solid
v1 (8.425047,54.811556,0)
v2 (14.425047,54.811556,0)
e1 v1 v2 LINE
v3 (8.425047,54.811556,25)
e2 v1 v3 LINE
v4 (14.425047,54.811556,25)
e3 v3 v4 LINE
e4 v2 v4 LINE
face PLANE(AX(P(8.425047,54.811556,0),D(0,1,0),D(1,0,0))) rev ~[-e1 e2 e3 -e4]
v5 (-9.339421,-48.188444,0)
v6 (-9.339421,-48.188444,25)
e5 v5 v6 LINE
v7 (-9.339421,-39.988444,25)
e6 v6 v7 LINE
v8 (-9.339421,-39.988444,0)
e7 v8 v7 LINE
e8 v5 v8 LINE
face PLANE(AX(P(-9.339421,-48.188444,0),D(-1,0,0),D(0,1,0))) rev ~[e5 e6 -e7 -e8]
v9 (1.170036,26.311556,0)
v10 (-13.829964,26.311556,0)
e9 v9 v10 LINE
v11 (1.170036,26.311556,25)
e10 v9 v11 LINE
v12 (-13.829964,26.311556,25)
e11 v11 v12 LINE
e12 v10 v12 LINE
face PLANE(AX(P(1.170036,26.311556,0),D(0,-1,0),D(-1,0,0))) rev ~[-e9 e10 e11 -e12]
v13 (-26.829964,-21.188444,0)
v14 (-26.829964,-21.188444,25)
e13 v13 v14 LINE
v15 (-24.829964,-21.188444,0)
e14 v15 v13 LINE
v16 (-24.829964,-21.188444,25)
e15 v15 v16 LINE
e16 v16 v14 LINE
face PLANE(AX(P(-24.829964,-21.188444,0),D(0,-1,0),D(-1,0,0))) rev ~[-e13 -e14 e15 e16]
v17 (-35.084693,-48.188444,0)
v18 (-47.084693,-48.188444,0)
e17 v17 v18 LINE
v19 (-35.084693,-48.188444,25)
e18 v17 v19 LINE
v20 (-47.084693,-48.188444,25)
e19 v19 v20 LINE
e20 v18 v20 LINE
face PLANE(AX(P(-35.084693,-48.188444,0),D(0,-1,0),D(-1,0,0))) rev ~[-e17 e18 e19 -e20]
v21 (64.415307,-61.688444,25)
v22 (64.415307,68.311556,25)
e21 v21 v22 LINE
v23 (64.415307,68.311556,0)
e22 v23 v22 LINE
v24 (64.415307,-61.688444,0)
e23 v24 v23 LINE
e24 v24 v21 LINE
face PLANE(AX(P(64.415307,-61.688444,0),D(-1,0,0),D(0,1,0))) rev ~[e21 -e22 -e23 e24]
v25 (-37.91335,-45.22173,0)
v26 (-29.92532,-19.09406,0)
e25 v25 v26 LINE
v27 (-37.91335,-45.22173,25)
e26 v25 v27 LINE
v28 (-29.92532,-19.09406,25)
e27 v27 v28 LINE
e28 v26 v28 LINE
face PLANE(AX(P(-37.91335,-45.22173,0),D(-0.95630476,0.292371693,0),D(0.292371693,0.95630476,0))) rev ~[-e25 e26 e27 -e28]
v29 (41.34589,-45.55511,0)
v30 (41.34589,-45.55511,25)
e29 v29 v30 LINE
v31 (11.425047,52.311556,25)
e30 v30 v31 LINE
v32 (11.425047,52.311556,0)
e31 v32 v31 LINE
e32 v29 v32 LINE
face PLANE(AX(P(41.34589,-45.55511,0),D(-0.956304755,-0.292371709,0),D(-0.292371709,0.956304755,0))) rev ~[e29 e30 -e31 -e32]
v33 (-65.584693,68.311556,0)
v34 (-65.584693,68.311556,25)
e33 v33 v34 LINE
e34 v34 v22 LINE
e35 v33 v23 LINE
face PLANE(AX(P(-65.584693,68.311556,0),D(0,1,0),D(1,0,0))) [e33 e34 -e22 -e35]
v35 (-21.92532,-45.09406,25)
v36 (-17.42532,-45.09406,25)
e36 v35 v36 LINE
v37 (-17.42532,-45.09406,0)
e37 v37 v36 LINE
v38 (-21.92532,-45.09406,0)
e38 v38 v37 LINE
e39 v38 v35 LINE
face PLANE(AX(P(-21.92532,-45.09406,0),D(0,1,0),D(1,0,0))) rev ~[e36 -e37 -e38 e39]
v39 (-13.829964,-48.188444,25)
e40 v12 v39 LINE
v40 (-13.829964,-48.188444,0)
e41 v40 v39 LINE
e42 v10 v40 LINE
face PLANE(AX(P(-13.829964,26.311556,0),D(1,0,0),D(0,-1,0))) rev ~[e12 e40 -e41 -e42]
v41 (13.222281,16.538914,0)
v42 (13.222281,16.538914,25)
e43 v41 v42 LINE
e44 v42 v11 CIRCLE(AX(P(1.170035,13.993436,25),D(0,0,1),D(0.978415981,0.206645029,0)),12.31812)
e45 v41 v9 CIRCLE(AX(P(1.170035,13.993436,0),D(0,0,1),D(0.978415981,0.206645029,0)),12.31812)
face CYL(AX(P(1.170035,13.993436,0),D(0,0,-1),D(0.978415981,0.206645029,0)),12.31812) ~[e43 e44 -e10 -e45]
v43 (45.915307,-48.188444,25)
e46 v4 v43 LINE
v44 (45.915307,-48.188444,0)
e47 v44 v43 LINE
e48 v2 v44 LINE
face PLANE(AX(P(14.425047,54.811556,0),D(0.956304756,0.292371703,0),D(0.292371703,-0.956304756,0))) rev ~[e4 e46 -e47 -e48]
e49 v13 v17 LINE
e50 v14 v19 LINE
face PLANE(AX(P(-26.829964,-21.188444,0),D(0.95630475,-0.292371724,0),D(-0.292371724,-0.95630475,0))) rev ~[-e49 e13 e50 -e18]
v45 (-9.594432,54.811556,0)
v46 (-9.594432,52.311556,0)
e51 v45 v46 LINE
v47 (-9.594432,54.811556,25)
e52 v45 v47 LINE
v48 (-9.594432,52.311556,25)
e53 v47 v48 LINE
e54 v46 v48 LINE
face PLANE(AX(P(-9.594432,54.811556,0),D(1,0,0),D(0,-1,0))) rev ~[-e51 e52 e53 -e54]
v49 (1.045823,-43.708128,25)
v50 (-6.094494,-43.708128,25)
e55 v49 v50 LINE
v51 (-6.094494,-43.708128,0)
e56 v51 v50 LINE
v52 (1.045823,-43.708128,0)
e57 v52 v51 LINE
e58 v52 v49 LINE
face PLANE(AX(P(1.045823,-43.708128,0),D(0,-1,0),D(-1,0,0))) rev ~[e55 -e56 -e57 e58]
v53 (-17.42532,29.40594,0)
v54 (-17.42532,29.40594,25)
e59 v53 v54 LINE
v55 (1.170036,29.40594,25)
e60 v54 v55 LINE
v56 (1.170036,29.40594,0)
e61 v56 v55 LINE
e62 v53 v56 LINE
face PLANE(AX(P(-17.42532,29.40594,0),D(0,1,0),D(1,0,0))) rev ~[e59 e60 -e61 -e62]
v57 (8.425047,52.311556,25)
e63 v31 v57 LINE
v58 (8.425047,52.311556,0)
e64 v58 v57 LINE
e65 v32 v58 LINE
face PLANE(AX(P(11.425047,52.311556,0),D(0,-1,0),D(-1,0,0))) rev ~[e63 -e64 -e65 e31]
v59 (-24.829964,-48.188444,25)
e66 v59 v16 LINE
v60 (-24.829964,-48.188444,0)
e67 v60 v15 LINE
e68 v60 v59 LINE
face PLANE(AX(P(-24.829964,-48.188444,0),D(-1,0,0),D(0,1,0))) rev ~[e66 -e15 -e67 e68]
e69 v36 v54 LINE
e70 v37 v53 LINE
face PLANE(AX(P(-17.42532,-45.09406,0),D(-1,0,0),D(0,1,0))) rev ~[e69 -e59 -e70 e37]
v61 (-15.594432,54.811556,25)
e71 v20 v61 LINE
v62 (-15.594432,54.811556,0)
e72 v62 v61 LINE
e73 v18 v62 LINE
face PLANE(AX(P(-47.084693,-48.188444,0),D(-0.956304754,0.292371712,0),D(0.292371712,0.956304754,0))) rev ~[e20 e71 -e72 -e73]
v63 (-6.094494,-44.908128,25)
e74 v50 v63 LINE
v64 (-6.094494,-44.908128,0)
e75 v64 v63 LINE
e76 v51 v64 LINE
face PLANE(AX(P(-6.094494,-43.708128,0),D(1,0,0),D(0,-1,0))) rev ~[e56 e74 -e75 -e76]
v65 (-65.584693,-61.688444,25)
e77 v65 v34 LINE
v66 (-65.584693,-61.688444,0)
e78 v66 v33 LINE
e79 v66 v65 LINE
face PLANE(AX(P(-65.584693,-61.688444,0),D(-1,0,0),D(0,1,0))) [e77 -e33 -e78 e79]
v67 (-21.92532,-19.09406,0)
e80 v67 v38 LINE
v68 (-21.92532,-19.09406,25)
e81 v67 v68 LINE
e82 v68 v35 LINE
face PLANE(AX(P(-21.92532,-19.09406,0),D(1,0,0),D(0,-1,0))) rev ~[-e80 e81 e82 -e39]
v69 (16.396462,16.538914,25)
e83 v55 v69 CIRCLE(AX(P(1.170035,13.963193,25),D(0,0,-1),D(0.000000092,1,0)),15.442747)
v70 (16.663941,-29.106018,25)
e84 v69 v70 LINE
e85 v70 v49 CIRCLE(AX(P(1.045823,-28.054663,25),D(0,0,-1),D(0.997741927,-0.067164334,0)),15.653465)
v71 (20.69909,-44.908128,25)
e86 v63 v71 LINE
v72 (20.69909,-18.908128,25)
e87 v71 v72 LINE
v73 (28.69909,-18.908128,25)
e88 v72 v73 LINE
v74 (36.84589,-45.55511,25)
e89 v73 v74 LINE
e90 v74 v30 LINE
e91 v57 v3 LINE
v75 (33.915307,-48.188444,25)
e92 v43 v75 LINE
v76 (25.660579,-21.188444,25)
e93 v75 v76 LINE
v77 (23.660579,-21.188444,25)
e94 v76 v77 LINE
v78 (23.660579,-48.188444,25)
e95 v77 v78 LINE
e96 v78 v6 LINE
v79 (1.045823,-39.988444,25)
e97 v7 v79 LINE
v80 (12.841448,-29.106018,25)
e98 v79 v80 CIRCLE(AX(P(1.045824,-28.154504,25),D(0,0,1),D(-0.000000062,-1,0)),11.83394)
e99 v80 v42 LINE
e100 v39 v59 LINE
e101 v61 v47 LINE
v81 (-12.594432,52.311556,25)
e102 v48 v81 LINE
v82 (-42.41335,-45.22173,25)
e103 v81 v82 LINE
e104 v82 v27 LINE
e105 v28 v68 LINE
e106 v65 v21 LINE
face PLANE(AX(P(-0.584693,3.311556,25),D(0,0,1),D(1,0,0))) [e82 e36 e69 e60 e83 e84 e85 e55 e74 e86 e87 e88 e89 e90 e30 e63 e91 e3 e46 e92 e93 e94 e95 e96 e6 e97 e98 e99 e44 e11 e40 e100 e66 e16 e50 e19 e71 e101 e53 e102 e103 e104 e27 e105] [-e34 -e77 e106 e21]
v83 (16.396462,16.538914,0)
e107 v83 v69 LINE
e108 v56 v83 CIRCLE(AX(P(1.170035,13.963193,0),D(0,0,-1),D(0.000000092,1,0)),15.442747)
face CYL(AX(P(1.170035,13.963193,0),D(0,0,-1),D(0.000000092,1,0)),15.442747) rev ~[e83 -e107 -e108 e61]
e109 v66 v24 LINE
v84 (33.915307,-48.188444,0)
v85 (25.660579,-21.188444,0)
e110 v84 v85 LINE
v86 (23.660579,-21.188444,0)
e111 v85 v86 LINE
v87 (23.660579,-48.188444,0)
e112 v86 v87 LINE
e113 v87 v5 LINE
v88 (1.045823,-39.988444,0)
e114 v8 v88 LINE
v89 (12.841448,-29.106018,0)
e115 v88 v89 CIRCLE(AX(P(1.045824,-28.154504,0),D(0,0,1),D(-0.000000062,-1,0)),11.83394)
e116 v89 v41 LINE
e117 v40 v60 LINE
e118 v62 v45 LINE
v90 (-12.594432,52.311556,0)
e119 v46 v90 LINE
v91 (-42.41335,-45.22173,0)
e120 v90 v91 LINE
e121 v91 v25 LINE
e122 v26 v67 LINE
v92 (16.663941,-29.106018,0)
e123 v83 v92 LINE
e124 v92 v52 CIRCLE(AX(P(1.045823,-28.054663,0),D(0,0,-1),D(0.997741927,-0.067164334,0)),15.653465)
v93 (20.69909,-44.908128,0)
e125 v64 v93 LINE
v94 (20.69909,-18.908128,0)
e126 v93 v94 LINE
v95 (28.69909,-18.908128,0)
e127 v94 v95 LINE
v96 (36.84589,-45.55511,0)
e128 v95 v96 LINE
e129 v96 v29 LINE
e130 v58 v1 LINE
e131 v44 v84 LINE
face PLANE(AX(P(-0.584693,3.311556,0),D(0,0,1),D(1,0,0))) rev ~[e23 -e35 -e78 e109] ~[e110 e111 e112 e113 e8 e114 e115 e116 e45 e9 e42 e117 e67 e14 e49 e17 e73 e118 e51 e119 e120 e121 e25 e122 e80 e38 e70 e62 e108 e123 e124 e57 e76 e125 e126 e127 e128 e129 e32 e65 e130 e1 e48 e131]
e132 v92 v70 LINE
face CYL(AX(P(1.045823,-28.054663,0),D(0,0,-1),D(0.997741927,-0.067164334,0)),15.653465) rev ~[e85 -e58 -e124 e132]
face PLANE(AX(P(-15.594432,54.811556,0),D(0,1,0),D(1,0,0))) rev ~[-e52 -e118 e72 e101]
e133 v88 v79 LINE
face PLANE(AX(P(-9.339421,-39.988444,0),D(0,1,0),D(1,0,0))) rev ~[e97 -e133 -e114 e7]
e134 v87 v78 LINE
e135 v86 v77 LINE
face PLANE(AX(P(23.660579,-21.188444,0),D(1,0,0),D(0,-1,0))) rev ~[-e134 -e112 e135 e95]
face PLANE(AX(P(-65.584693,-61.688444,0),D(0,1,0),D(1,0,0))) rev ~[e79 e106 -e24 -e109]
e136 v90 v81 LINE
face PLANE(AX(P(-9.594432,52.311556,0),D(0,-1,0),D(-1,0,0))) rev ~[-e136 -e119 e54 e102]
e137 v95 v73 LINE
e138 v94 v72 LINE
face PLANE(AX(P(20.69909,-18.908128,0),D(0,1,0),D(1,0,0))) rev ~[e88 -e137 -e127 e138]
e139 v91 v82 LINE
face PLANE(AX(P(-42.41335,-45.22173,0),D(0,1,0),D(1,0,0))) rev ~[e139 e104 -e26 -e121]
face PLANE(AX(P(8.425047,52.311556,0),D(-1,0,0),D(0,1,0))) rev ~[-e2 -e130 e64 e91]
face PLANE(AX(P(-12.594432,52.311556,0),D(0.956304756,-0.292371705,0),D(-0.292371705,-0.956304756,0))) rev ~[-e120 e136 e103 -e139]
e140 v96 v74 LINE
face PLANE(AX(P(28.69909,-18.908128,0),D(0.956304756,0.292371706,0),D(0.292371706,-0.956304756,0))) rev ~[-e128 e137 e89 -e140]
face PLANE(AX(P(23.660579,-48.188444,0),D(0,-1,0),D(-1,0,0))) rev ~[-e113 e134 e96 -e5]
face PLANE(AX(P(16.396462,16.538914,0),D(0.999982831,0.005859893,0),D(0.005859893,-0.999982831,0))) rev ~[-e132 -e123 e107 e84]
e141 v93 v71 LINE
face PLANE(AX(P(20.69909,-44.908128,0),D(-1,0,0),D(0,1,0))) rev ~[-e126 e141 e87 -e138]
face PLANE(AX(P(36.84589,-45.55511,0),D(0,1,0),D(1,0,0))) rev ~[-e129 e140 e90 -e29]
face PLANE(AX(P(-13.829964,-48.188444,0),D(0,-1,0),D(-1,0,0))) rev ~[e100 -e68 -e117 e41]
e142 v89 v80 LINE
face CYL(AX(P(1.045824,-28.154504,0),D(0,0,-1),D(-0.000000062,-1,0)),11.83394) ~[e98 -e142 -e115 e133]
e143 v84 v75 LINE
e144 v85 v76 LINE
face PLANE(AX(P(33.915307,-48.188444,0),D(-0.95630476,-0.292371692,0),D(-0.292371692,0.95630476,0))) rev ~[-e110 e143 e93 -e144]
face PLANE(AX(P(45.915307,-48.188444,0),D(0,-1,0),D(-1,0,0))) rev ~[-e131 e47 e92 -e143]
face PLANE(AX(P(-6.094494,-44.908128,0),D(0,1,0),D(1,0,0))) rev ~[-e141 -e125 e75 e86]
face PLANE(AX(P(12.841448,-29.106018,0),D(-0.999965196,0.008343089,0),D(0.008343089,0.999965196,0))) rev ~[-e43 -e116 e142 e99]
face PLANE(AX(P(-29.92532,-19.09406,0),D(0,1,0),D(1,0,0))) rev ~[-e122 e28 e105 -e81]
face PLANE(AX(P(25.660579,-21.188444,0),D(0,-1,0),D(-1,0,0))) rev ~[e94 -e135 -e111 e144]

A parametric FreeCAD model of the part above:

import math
import FreeCAD as App
import Part
import Sketcher

V = App.Vector
Q = App.Units.Quantity

doc = App.newDocument("Part")
body = doc.addObject("PartDesign::Body", "Body")

# Sketch on XY plane
sketch1 = body.newObject("Sketcher::SketchObject", "Sketch")
sketch1.AttachmentSupport = (doc.getObject("XY_Plane"), [""])
sketch1.MapMode = "FlatFace"
sketch1.addGeometry([
    Part.LineSegment(V(-65.6, 68.3, 0), V(-65.6, -61.7, 0)),  # 0
    Part.LineSegment(V(-65.6, -61.7, 0), V(64.4, -61.7, 0)),  # 1
    Part.LineSegment(V(64.4, -61.7, 0), V(64.4, 68.3, 0)),  # 2
    Part.LineSegment(V(64.4, 68.3, 0), V(-65.6, 68.3, 0)),  # 3
    Part.LineSegment(V(-47.1, -48.2, 0), V(-15.6, 54.8, 0)),  # 4
    Part.LineSegment(V(-15.6, 54.8, 0), V(-9.6, 54.8, 0)),  # 5
    Part.LineSegment(V(-9.6, 54.8, 0), V(-9.6, 52.3, 0)),  # 6
    Part.LineSegment(V(-9.6, 52.3, 0), V(-12.6, 52.3, 0)),  # 7
    Part.LineSegment(V(-12.6, 52.3, 0), V(-42.4, -45.2, 0)),  # 8
    Part.LineSegment(V(-42.4, -45.2, 0), V(-37.9, -45.2, 0)),  # 9
    Part.LineSegment(V(-37.9, -45.2, 0), V(-29.9, -19.1, 0)),  # 10
    Part.LineSegment(V(-29.9, -19.1, 0), V(-21.9, -19.1, 0)),  # 11
    Part.LineSegment(V(-21.9, -19.1, 0), V(-21.9, -45.1, 0)),  # 12
    Part.LineSegment(V(-21.9, -45.1, 0), V(-17.4, -45.1, 0)),  # 13
    Part.LineSegment(V(-17.4, -45.1, 0), V(-17.4, 29.4, 0)),  # 14
    Part.LineSegment(V(-17.4, 29.4, 0), V(1.2, 29.4, 0)),  # 15
    Part.ArcOfCircle(Part.Circle(V(1.2, 14, 0), V(0, 0, 1), 15.4), math.radians(10), math.radians(90)),  # 16
    Part.LineSegment(V(16.4, 16.5, 0), V(16.7, -29.1, 0)),  # 17
    Part.ArcOfCircle(Part.Circle(V(1, -28.1, 0), V(0, 0, 1), 15.7), math.radians(-90), math.radians(-4)),  # 18
    Part.LineSegment(V(1, -43.7, 0), V(-6.1, -43.7, 0)),  # 19
    Part.LineSegment(V(-6.1, -43.7, 0), V(-6.1, -44.9, 0)),  # 20
    Part.LineSegment(V(-6.1, -44.9, 0), V(20.7, -44.9, 0)),  # 21
    Part.LineSegment(V(20.7, -44.9, 0), V(20.7, -18.9, 0)),  # 22
    Part.LineSegment(V(20.7, -18.9, 0), V(28.7, -18.9, 0)),  # 23
    Part.LineSegment(V(28.7, -18.9, 0), V(36.8, -45.6, 0)),  # 24
    Part.LineSegment(V(36.8, -45.6, 0), V(41.3, -45.6, 0)),  # 25
    Part.LineSegment(V(41.3, -45.6, 0), V(11.4, 52.3, 0)),  # 26
    Part.LineSegment(V(11.4, 52.3, 0), V(8.4, 52.3, 0)),  # 27
    Part.LineSegment(V(8.4, 52.3, 0), V(8.4, 54.8, 0)),  # 28
    Part.LineSegment(V(8.4, 54.8, 0), V(14.4, 54.8, 0)),  # 29
    Part.LineSegment(V(14.4, 54.8, 0), V(45.9, -48.2, 0)),  # 30
    Part.LineSegment(V(45.9, -48.2, 0), V(33.9, -48.2, 0)),  # 31
    Part.LineSegment(V(33.9, -48.2, 0), V(25.7, -21.2, 0)),  # 32
    Part.LineSegment(V(25.7, -21.2, 0), V(23.7, -21.2, 0)),  # 33
    Part.LineSegment(V(23.7, -21.2, 0), V(23.7, -48.2, 0)),  # 34
    Part.LineSegment(V(23.7, -48.2, 0), V(-9.3, -48.2, 0)),  # 35
    Part.LineSegment(V(-9.3, -48.2, 0), V(-9.3, -40, 0)),  # 36
    Part.LineSegment(V(-9.3, -40, 0), V(1, -40, 0)),  # 37
    Part.ArcOfCircle(Part.Circle(V(1, -28.2, 0), V(0, 0, 1), 11.8), math.radians(-90), math.radians(-5)),  # 38
    Part.LineSegment(V(12.8, -29.1, 0), V(13.2, 16.5, 0)),  # 39
    Part.ArcOfCircle(Part.Circle(V(1.2, 14, 0), V(0, 0, 1), 12.3), math.radians(12), math.radians(90)),  # 40
    Part.LineSegment(V(1.2, 26.3, 0), V(-13.8, 26.3, 0)),  # 41
    Part.LineSegment(V(-13.8, 26.3, 0), V(-13.8, -48.2, 0)),  # 42
    Part.LineSegment(V(-13.8, -48.2, 0), V(-24.8, -48.2, 0)),  # 43
    Part.LineSegment(V(-24.8, -48.2, 0), V(-24.8, -21.2, 0)),  # 44
    Part.LineSegment(V(-24.8, -21.2, 0), V(-26.8, -21.2, 0)),  # 45
    Part.LineSegment(V(-26.8, -21.2, 0), V(-35.1, -48.2, 0)),  # 46
    Part.LineSegment(V(-35.1, -48.2, 0), V(-47.1, -48.2, 0)),  # 47
], False)
sketch1.addConstraint([
    Sketcher.Constraint("Coincident", 0, 2, 1, 1),
    Sketcher.Constraint("Coincident", 1, 2, 2, 1),
    Sketcher.Constraint("Coincident", 2, 2, 3, 1),
    Sketcher.Constraint("Coincident", 3, 2, 0, 1),
    Sketcher.Constraint("Coincident", 4, 2, 5, 1),
    Sketcher.Constraint("Coincident", 5, 2, 6, 1),
    Sketcher.Constraint("Coincident", 6, 2, 7, 1),
    Sketcher.Constraint("Coincident", 7, 2, 8, 1),
    Sketcher.Constraint("Coincident", 8, 2, 9, 1),
    Sketcher.Constraint("Coincident", 9, 2, 10, 1),
    Sketcher.Constraint("Coincident", 10, 2, 11, 1),
    Sketcher.Constraint("Coincident", 11, 2, 12, 1),
    Sketcher.Constraint("Coincident", 12, 2, 13, 1),
    Sketcher.Constraint("Coincident", 13, 2, 14, 1),
    Sketcher.Constraint("Coincident", 14, 2, 15, 1),
    Sketcher.Constraint("Tangent", 15, 2, 16, 2),
    Sketcher.Constraint("Coincident", 16, 1, 17, 1),
    Sketcher.Constraint("Coincident", 17, 2, 18, 2),
    Sketcher.Constraint("Tangent", 18, 1, 19, 1),
    Sketcher.Constraint("Coincident", 19, 2, 20, 1),
    Sketcher.Constraint("Coincident", 20, 2, 21, 1),
    Sketcher.Constraint("Coincident", 21, 2, 22, 1),
    Sketcher.Constraint("Coincident", 22, 2, 23, 1),
    Sketcher.Constraint("Coincident", 23, 2, 24, 1),
    Sketcher.Constraint("Coincident", 24, 2, 25, 1),
    Sketcher.Constraint("Coincident", 25, 2, 26, 1),
    Sketcher.Constraint("Coincident", 26, 2, 27, 1),
    Sketcher.Constraint("Coincident", 27, 2, 28, 1),
    Sketcher.Constraint("Coincident", 28, 2, 29, 1),
    Sketcher.Constraint("Coincident", 29, 2, 30, 1),
    Sketcher.Constraint("Coincident", 30, 2, 31, 1),
    Sketcher.Constraint("Coincident", 31, 2, 32, 1),
    Sketcher.Constraint("Coincident", 32, 2, 33, 1),
    Sketcher.Constraint("Coincident", 33, 2, 34, 1),
    Sketcher.Constraint("Coincident", 34, 2, 35, 1),
    Sketcher.Constraint("Coincident", 35, 2, 36, 1),
    Sketcher.Constraint("Coincident", 36, 2, 37, 1),
    Sketcher.Constraint("Tangent", 37, 2, 38, 1),
    Sketcher.Constraint("Coincident", 38, 2, 39, 1),
    Sketcher.Constraint("Coincident", 39, 2, 40, 1),
    Sketcher.Constraint("Tangent", 40, 2, 41, 1),
    Sketcher.Constraint("Coincident", 41, 2, 42, 1),
    Sketcher.Constraint("Coincident", 42, 2, 43, 1),
    Sketcher.Constraint("Coincident", 43, 2, 44, 1),
    Sketcher.Constraint("Coincident", 44, 2, 45, 1),
    Sketcher.Constraint("Coincident", 45, 2, 46, 1),
    Sketcher.Constraint("Coincident", 46, 2, 47, 1),
    Sketcher.Constraint("Coincident", 47, 2, 4, 1),
    Sketcher.Constraint("Vertical", 0),
    Sketcher.Constraint("Horizontal", 1),
    Sketcher.Constraint("Vertical", 2),
    Sketcher.Constraint("Horizontal", 3),
    Sketcher.Constraint("Horizontal", 5),
    Sketcher.Constraint("Vertical", 6),
    Sketcher.Constraint("Horizontal", 7),
    Sketcher.Constraint("Horizontal", 9),
    Sketcher.Constraint("Horizontal", 11),
    Sketcher.Constraint("Vertical", 12),
    Sketcher.Constraint("Horizontal", 13),
    Sketcher.Constraint("Vertical", 14),
    Sketcher.Constraint("Horizontal", 15),
    Sketcher.Constraint("Horizontal", 19),
    Sketcher.Constraint("Vertical", 20),
    Sketcher.Constraint("Horizontal", 21),
    Sketcher.Constraint("Vertical", 22),
    Sketcher.Constraint("Horizontal", 23),
    Sketcher.Constraint("Horizontal", 25),
    Sketcher.Constraint("Horizontal", 27),
    Sketcher.Constraint("Vertical", 28),
    Sketcher.Constraint("Horizontal", 29),
    Sketcher.Constraint("Horizontal", 31),
    Sketcher.Constraint("Horizontal", 33),
    Sketcher.Constraint("Vertical", 34),
    Sketcher.Constraint("Horizontal", 35),
    Sketcher.Constraint("Vertical", 36),
    Sketcher.Constraint("Horizontal", 37),
    Sketcher.Constraint("Horizontal", 41),
    Sketcher.Constraint("Vertical", 42),
    Sketcher.Constraint("Horizontal", 43),
    Sketcher.Constraint("Vertical", 44),
    Sketcher.Constraint("Horizontal", 45),
    Sketcher.Constraint("Horizontal", 47),
    Sketcher.Constraint("Parallel", 4, 8),
    Sketcher.Constraint("Parallel", 8, 10),
    Sketcher.Constraint("Parallel", 24, 26),
    Sketcher.Constraint("Parallel", 26, 30),
    Sketcher.Constraint("Parallel", 30, 32),
    Sketcher.Constraint("Parallel", 10, 46),
    Sketcher.Constraint("Horizontal", 7, 2, 26, 2),
    Sketcher.Constraint("Horizontal", 5, 2, 28, 2),
    Sketcher.Constraint("Horizontal", 31, 2, 34, 2),
    Sketcher.Constraint("Horizontal", 17, 2, 38, 2),
    Sketcher.Constraint("Horizontal", 16, 1, 39, 2),
    Sketcher.Constraint("Horizontal", 35, 2, 42, 2),
    Sketcher.Constraint("Horizontal", 33, 2, 44, 2),
    Sketcher.Constraint("Horizontal", 43, 2, 46, 2),
    Sketcher.Constraint("Vertical", 18, 3, 38, 3),
    Sketcher.Constraint("Vertical", 16, 3, 40, 3),
    Sketcher.Constraint("Equal", 9, 13),
    Sketcher.Constraint("Equal", 11, 23),
    Sketcher.Constraint("Equal", 13, 25),
    Sketcher.Constraint("Equal", 7, 27),
    Sketcher.Constraint("Equal", 5, 29),
    Sketcher.Constraint("Equal", 33, 45),
    Sketcher.Constraint("Equal", 31, 47),
    Sketcher.Constraint("Equal", 3, 0),
    Sketcher.Constraint("Equal", 12, 22),
    Sketcher.Constraint("Equal", 14, 42),
    Sketcher.Constraint("Equal", 4, 30),
    Sketcher.Constraint("DistanceX", 1, 1, 1, 2, 130.0),
    Sketcher.Constraint("DistanceX", 5, 1, 5, 2, 6.0),
    Sketcher.Constraint("DistanceX", 7, 2, 7, 1, 3.0),
    Sketcher.Constraint("DistanceX", 11, 1, 11, 2, 8.0),
    Sketcher.Constraint("DistanceX", 31, 2, 31, 1, 12.0),
    Sketcher.Constraint("DistanceX", 33, 2, 33, 1, 2.0),
    Sketcher.Constraint("DistanceX", 35, 2, 35, 1, 33.0),
    Sketcher.Constraint("DistanceX", 41, 2, 41, 1, 15.0),
    Sketcher.Constraint("DistanceX", 43, 2, 43, 1, 11.0),
    Sketcher.Constraint("DistanceY", 12, 2, 12, 1, 26.0),
    Sketcher.Constraint("DistanceY", 34, 2, 34, 1, 27.0),
    Sketcher.Constraint("Angle", 4, Q("73 deg")),
    Sketcher.Constraint("DistanceX", 9, 1, 9, 2, 4.5),
    Sketcher.Constraint("DistanceY", 6, 2, 6, 1, 2.5),
    Sketcher.Constraint("DistanceY", 14, 1, 14, 2, 74.5),
    Sketcher.Constraint("DistanceY", 20, 2, 20, 1, 1.2),
    Sketcher.Constraint("DistanceY", 36, 1, 36, 2, 8.2),
    Sketcher.Constraint("DistanceY", 6, 2, 3, 2, 16.0),
    Sketcher.Constraint("DistanceX", 30, 2, 1, 2, 18.5),
    Sketcher.Constraint("DistanceY", 1, 2, 30, 2, 13.5),
    Sketcher.Constraint("DistanceX", 0, 2, 47, 2, 18.5),
    Sketcher.Constraint("Radius", 38, 11.83394),
    Sketcher.Constraint("Radius", 40, 12.31812),
    Sketcher.Constraint("Radius", 16, 15.442747),
    Sketcher.Constraint("Radius", 18, 15.653465),
    Sketcher.Constraint("DistanceY", 18, 3, 40, 3, 42.048099),
    Sketcher.Constraint("DistanceX", 21, 2, 24, 2, 16.1468),
    Sketcher.Constraint("DistanceX", 13, 2, 35, 2, 8.085899),
    Sketcher.Constraint("DistanceX", 14, 2, 39, 2, 30.647601),
    Sketcher.Constraint("Distance", 10, 27.321489),
    Sketcher.Constraint("Distance", 39, 45.646521),
    Sketcher.Constraint("DistanceX", 19, 2, 19, 1, 7.140317),
    Sketcher.Constraint("DistanceX", 21, 1, 21, 2, 26.793584),
    Sketcher.Constraint("DistanceX", 8, 2, -1, 1, 42.41335),
    Sketcher.Constraint("DistanceY", 8, 2, -1, 1, 45.22173),
])
pad1 = body.newObject("PartDesign::Pad", "Pad")
pad1.Profile = sketch1
pad1.Length = 25

doc.recompute()
